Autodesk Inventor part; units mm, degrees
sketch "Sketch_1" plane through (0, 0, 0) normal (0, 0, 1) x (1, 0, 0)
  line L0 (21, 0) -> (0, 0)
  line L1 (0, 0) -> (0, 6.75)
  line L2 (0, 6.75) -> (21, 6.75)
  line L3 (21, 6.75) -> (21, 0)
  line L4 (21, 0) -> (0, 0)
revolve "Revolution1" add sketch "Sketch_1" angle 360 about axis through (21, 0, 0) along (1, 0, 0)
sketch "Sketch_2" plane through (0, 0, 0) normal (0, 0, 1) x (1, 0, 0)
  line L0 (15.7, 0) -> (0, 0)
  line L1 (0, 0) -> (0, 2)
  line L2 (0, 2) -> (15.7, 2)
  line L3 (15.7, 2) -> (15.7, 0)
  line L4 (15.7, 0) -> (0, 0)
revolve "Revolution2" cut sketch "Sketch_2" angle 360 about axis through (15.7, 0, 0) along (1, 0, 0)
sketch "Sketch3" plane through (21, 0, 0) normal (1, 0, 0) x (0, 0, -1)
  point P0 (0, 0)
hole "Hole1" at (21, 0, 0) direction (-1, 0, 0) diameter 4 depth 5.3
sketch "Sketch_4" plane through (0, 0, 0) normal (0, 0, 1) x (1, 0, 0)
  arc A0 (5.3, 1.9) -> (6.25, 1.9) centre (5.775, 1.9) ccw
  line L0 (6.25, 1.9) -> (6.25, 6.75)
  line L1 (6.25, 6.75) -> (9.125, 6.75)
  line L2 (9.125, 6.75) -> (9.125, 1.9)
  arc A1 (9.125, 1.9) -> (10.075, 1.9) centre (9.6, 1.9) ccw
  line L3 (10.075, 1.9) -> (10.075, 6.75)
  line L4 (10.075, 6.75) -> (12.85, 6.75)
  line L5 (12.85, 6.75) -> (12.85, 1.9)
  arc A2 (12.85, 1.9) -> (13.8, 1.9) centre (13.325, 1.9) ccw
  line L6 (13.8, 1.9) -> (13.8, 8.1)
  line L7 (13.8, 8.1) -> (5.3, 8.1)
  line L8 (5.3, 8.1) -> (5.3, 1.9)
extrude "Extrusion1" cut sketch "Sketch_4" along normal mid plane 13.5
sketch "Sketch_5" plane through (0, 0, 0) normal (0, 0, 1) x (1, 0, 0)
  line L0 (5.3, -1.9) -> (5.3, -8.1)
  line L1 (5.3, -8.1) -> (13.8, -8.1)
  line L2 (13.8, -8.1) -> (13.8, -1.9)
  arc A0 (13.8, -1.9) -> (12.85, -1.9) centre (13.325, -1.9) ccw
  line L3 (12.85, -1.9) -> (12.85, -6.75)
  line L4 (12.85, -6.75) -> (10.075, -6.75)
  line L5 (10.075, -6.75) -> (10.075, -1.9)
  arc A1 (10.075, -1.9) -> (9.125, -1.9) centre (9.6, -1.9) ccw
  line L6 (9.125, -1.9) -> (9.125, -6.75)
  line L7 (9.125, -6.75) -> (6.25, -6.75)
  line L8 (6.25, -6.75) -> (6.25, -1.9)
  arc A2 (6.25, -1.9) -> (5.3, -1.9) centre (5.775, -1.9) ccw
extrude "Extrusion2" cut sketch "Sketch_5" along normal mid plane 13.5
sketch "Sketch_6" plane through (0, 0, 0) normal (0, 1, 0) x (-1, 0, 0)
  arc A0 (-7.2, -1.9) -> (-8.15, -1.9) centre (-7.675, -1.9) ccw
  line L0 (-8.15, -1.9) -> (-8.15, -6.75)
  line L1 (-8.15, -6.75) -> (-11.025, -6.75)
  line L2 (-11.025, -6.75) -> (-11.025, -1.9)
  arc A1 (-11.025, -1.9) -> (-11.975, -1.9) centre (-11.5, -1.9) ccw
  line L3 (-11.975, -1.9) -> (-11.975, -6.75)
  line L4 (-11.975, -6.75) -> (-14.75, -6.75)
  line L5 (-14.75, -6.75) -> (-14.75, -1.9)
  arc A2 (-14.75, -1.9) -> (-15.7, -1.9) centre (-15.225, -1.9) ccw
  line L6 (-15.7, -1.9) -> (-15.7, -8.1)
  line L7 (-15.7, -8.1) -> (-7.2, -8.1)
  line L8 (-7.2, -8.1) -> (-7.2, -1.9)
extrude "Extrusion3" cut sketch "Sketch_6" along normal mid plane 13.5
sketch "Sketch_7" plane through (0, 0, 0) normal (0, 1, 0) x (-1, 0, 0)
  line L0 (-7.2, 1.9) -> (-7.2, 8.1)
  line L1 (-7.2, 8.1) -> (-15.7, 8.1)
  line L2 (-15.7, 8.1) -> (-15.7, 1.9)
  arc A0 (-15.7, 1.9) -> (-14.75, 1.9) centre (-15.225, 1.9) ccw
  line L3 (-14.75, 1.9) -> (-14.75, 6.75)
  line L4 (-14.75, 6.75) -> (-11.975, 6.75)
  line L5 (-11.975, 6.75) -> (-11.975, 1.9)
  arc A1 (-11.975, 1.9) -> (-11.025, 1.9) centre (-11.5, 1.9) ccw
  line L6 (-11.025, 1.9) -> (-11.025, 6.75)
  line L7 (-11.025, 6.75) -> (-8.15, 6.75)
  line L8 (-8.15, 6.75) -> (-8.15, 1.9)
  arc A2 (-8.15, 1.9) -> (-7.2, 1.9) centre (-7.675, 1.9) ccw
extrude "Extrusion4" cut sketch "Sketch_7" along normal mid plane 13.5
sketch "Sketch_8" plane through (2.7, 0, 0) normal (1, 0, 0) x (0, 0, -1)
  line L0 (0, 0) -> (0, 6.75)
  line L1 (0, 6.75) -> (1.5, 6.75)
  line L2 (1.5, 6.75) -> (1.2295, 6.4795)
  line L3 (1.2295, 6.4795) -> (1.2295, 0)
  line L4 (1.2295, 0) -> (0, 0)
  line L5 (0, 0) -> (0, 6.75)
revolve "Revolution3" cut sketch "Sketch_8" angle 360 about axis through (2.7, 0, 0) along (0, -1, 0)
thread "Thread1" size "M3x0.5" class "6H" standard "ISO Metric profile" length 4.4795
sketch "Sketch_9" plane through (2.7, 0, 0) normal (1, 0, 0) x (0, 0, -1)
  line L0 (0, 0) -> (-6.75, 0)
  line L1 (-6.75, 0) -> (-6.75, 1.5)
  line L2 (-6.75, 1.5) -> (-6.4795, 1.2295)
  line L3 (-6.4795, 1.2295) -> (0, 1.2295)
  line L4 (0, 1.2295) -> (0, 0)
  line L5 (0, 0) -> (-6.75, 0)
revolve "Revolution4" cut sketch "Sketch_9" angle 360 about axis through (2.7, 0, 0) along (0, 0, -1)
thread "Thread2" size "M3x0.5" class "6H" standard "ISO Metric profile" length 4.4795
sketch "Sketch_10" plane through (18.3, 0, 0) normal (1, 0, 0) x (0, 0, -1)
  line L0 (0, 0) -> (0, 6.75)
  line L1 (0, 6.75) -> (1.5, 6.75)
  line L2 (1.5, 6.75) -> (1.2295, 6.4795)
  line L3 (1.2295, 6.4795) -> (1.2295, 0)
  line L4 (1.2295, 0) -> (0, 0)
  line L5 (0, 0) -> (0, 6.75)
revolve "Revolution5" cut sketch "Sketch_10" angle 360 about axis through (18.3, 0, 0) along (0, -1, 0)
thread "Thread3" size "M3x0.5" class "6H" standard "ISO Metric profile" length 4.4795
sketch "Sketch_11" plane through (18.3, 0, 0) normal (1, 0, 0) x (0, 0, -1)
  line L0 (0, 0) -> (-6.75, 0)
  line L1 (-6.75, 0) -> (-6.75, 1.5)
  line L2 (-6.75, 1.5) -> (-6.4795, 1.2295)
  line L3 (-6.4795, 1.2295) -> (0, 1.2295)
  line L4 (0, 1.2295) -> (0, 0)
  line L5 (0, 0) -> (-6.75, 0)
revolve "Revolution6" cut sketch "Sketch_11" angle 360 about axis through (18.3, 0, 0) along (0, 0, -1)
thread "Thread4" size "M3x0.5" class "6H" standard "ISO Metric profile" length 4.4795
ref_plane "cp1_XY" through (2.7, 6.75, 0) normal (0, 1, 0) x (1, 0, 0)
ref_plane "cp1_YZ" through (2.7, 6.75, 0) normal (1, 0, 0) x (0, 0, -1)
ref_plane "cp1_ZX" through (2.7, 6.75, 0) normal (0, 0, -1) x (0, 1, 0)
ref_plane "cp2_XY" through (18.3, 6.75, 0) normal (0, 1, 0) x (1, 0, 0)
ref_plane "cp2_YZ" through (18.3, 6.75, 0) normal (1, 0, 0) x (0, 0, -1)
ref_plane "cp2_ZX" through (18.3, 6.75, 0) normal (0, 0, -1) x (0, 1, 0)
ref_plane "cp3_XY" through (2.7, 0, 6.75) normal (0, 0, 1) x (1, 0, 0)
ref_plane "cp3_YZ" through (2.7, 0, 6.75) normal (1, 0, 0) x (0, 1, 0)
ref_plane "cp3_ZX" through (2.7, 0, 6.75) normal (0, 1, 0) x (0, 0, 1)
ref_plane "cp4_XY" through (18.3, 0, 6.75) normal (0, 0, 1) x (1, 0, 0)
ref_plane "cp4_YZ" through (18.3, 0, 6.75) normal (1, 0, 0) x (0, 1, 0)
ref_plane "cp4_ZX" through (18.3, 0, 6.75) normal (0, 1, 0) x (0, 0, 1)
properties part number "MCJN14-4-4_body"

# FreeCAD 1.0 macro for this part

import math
import FreeCAD as App
import Part
import Sketcher

V = App.Vector
Q = App.Units.Quantity


def add_polygon(sketch, points):
    """Adds a closed chain of lines whose ends are joined by coincident constraints."""
    first, n = sketch.GeometryCount, len(points)
    for a, b in zip(points, points[1:] + points[:1]):
        sketch.addGeometry(Part.LineSegment(App.Vector(*a, 0), App.Vector(*b, 0)), False)
    for i in range(n):
        sketch.addConstraint(Sketcher.Constraint("Coincident", first + i, 2, first + (i + 1) % n, 1))

doc = App.newDocument("Part")
body = doc.addObject("PartDesign::Body", "Body")

# Sketch on XY plane
sketch1 = body.newObject("Sketcher::SketchObject", "Sketch")
sketch1.AttachmentSupport = (doc.getObject("XY_Plane"), [""])
sketch1.MapMode = "FlatFace"
add_polygon(sketch1, [(0, 0), (21, 0), (21, 6.75), (0, 6.75)])  # lines 0-3
sketch1.addConstraint([
    Sketcher.Constraint("Horizontal", 0),
    Sketcher.Constraint("Vertical", 1),
    Sketcher.Constraint("Horizontal", 2),
    Sketcher.Constraint("Vertical", 3),
    Sketcher.Constraint("Coincident", 3, 2, -1, 1),
    Sketcher.Constraint("DistanceX", 0, 1, 0, 2, 21.0),
    Sketcher.Constraint("DistanceY", 1, 1, 1, 2, 6.75),
])
revolution = body.newObject("PartDesign::Revolution", "Revolution")
revolution.Profile = sketch1
revolution.ReferenceAxis = (sketch1, ["H_Axis"])
revolution.Angle = 360

# Sketch on XY plane
sketch2 = body.newObject("Sketcher::SketchObject", "Sketch001")
sketch2.AttachmentSupport = (doc.getObject("XY_Plane"), [""])
sketch2.MapMode = "FlatFace"
add_polygon(sketch2, [(0, 0), (15.7, 0), (15.7, 2), (0, 2)])  # lines 0-3
sketch2.addConstraint([
    Sketcher.Constraint("Horizontal", 0),
    Sketcher.Constraint("Vertical", 1),
    Sketcher.Constraint("Horizontal", 2),
    Sketcher.Constraint("Vertical", 3),
    Sketcher.Constraint("Coincident", 3, 2, -1, 1),
    Sketcher.Constraint("DistanceY", 1, 1, 1, 2, 2.0),
    Sketcher.Constraint("DistanceX", 0, 1, 0, 2, 15.7),
])
groove = body.newObject("PartDesign::Groove", "Groove")
groove.Profile = sketch2
groove.ReferenceAxis = (sketch2, ["H_Axis"])
groove.Angle = 360

# Sketch on YZ plane
sketch3 = body.newObject("Sketcher::SketchObject", "Sketch002")
sketch3.AttachmentSupport = (doc.getObject("YZ_Plane"), [""])
sketch3.MapMode = "FlatFace"
sketch3.AttachmentOffset = App.Placement(V(0, 0, 21), App.Rotation())
sketch3.addGeometry(Part.Circle(V(0, 0, 0), V(0, 0, 1), 2), False)
sketch3.addConstraint([
    Sketcher.Constraint("Coincident", 0, 3, -1, 1),
    Sketcher.Constraint("Diameter", 0, 4.0),
])
doc.recompute()
hole = body.newObject("PartDesign::Hole", "Hole")
hole.Profile = sketch3
hole.ThreadType = "None"
hole.Diameter = 4
hole.DepthType = "Dimension"
hole.Depth = 5.3
hole.DrillPoint = "Flat"

# Sketch on XY plane
sketch4 = body.newObject("Sketcher::SketchObject", "Sketch003")
sketch4.AttachmentSupport = (doc.getObject("XY_Plane"), [""])
sketch4.MapMode = "FlatFace"
sketch4.addGeometry([
    Part.LineSegment(V(5.3, 8.1, 0), V(5.3, 1.9, 0)),  # 0
    Part.ArcOfCircle(Part.Circle(V(5.775, 1.9, 0), V(0, 0, 1), 0.475), math.radians(180), math.radians(360)),  # 1
    Part.LineSegment(V(6.25, 1.9, 0), V(6.25, 6.75, 0)),  # 2
    Part.LineSegment(V(6.25, 6.75, 0), V(9.125, 6.75, 0)),  # 3
    Part.LineSegment(V(9.125, 6.75, 0), V(9.125, 1.9, 0)),  # 4
    Part.ArcOfCircle(Part.Circle(V(9.6, 1.9, 0), V(0, 0, 1), 0.475), math.radians(180), math.radians(360)),  # 5
    Part.LineSegment(V(10.075, 1.9, 0), V(10.075, 6.75, 0)),  # 6
    Part.LineSegment(V(10.075, 6.75, 0), V(12.85, 6.75, 0)),  # 7
    Part.LineSegment(V(12.85, 6.75, 0), V(12.85, 1.9, 0)),  # 8
    Part.ArcOfCircle(Part.Circle(V(13.325, 1.9, 0), V(0, 0, 1), 0.475), math.radians(180), math.radians(360)),  # 9
    Part.LineSegment(V(13.8, 1.9, 0), V(13.8, 8.1, 0)),  # 10
    Part.LineSegment(V(13.8, 8.1, 0), V(5.3, 8.1, 0)),  # 11
], False)
sketch4.addConstraint([
    Sketcher.Constraint("Tangent", 0, 2, 1, 1),
    Sketcher.Constraint("Tangent", 1, 2, 2, 1),
    Sketcher.Constraint("Coincident", 2, 2, 3, 1),
    Sketcher.Constraint("Coincident", 3, 2, 4, 1),
    Sketcher.Constraint("Tangent", 4, 2, 5, 1),
    Sketcher.Constraint("Tangent", 5, 2, 6, 1),
    Sketcher.Constraint("Coincident", 6, 2, 7, 1),
    Sketcher.Constraint("Coincident", 7, 2, 8, 1),
    Sketcher.Constraint("Tangent", 8, 2, 9, 1),
    Sketcher.Constraint("Tangent", 9, 2, 10, 1),
    Sketcher.Constraint("Coincident", 10, 2, 11, 1),
    Sketcher.Constraint("Coincident", 11, 2, 0, 1),
    Sketcher.Constraint("Vertical", 0),
    Sketcher.Constraint("Vertical", 2),
    Sketcher.Constraint("Horizontal", 3),
    Sketcher.Constraint("Vertical", 4),
    Sketcher.Constraint("Vertical", 6),
    Sketcher.Constraint("Horizontal", 7),
    Sketcher.Constraint("Vertical", 8),
    Sketcher.Constraint("Vertical", 10),
    Sketcher.Constraint("Horizontal", 11),
    Sketcher.Constraint("Equal", 1, 5),
    Sketcher.Constraint("Equal", 5, 9),
    Sketcher.Constraint("Horizontal", 1, 3, 5, 3),
    Sketcher.Constraint("Horizontal", 5, 3, 9, 3),
    Sketcher.Constraint("Horizontal", 3, 2, 6, 2),
    Sketcher.Constraint("DistanceX", 11, 2, 11, 1, 8.5),
    Sketcher.Constraint("DistanceY", 0, 2, 0, 1, 6.2),
    Sketcher.Constraint("Radius", 1, 0.475),
    Sketcher.Constraint("DistanceY", 2, 1, 2, 2, 4.85),
    Sketcher.Constraint("DistanceY", -1, 1, 1, 3, 1.9),
    Sketcher.Constraint("DistanceX", -1, 1, 5, 3, 9.6),
    Sketcher.Constraint("DistanceX", -1, 1, 0, 2, 5.3),
])
pocket1 = body.newObject("PartDesign::Pocket", "Pocket")
pocket1.Profile = sketch4
pocket1.Length = 13.5
pocket1.Midplane = True

# Sketch on XY plane
sketch5 = body.newObject("Sketcher::SketchObject", "Sketch004")
sketch5.AttachmentSupport = (doc.getObject("XY_Plane"), [""])
sketch5.MapMode = "FlatFace"
sketch5.addGeometry([
    Part.ArcOfCircle(Part.Circle(V(5.775, -1.9, 0), V(0, 0, 1), 0.475), math.radians(0), math.radians(180)),  # 0
    Part.LineSegment(V(5.3, -1.9, 0), V(5.3, -8.1, 0)),  # 1
    Part.LineSegment(V(5.3, -8.1, 0), V(13.8, -8.1, 0)),  # 2
    Part.LineSegment(V(13.8, -8.1, 0), V(13.8, -1.9, 0)),  # 3
    Part.ArcOfCircle(Part.Circle(V(13.325, -1.9, 0), V(0, 0, 1), 0.475), math.radians(0), math.radians(180)),  # 4
    Part.LineSegment(V(12.85, -1.9, 0), V(12.85, -6.75, 0)),  # 5
    Part.LineSegment(V(12.85, -6.75, 0), V(10.075, -6.75, 0)),  # 6
    Part.LineSegment(V(10.075, -6.75, 0), V(10.075, -1.9, 0)),  # 7
    Part.ArcOfCircle(Part.Circle(V(9.6, -1.9, 0), V(0, 0, 1), 0.475), math.radians(0), math.radians(180)),  # 8
    Part.LineSegment(V(9.125, -1.9, 0), V(9.125, -6.75, 0)),  # 9
    Part.LineSegment(V(9.125, -6.75, 0), V(6.25, -6.75, 0)),  # 10
    Part.LineSegment(V(6.25, -6.75, 0), V(6.25, -1.9, 0)),  # 11
], False)
sketch5.addConstraint([
    Sketcher.Constraint("Tangent", 0, 2, 1, 1),
    Sketcher.Constraint("Coincident", 1, 2, 2, 1),
    Sketcher.Constraint("Coincident", 2, 2, 3, 1),
    Sketcher.Constraint("Tangent", 3, 2, 4, 1),
    Sketcher.Constraint("Tangent", 4, 2, 5, 1),
    Sketcher.Constraint("Coincident", 5, 2, 6, 1),
    Sketcher.Constraint("Coincident", 6, 2, 7, 1),
    Sketcher.Constraint("Tangent", 7, 2, 8, 1),
    Sketcher.Constraint("Tangent", 8, 2, 9, 1),
    Sketcher.Constraint("Coincident", 9, 2, 10, 1),
    Sketcher.Constraint("Coincident", 10, 2, 11, 1),
    Sketcher.Constraint("Tangent", 11, 2, 0, 1),
    Sketcher.Constraint("Vertical", 1),
    Sketcher.Constraint("Horizontal", 2),
    Sketcher.Constraint("Vertical", 3),
    Sketcher.Constraint("Vertical", 5),
    Sketcher.Constraint("Horizontal", 6),
    Sketcher.Constraint("Vertical", 7),
    Sketcher.Constraint("Vertical", 9),
    Sketcher.Constraint("Horizontal", 10),
    Sketcher.Constraint("Vertical", 11),
    Sketcher.Constraint("Equal", 0, 4),
    Sketcher.Constraint("Equal", 4, 8),
    Sketcher.Constraint("Horizontal", 0, 3, 4, 3),
    Sketcher.Constraint("Horizontal", 4, 3, 8, 3),
    Sketcher.Constraint("Horizontal", 6, 2, 9, 2),
    Sketcher.Constraint("DistanceX", 2, 1, 2, 2, 8.5),
    Sketcher.Constraint("DistanceY", 1, 2, 1, 1, 6.2),
    Sketcher.Constraint("Radius", 0, 0.475),
    Sketcher.Constraint("DistanceY", 5, 2, 5, 1, 4.85),
    Sketcher.Constraint("DistanceY", 0, 3, -1, 1, 1.9),
    Sketcher.Constraint("DistanceX", -1, 1, 8, 3, 9.6),
    Sketcher.Constraint("DistanceX", -1, 1, 0, 2, 5.3),
])
pocket2 = body.newObject("PartDesign::Pocket", "Pocket001")
pocket2.Profile = sketch5
pocket2.Length = 13.5
pocket2.Midplane = True

# Sketch on XZ plane
sketch6 = body.newObject("Sketcher::SketchObject", "Sketch005")
sketch6.AttachmentSupport = (doc.getObject("XZ_Plane"), [""])
sketch6.MapMode = "FlatFace"
sketch6.addGeometry([
    Part.LineSegment(V(7.2, -8.1, 0), V(7.2, -1.9, 0)),  # 0
    Part.ArcOfCircle(Part.Circle(V(7.675, -1.9, 0), V(0, 0, 1), 0.475), math.radians(0), math.radians(180)),  # 1
    Part.LineSegment(V(8.15, -1.9, 0), V(8.15, -6.75, 0)),  # 2
    Part.LineSegment(V(8.15, -6.75, 0), V(11.025, -6.75, 0)),  # 3
    Part.LineSegment(V(11.025, -6.75, 0), V(11.025, -1.9, 0)),  # 4
    Part.ArcOfCircle(Part.Circle(V(11.5, -1.9, 0), V(0, 0, 1), 0.475), math.radians(0), math.radians(180)),  # 5
    Part.LineSegment(V(11.975, -1.9, 0), V(11.975, -6.75, 0)),  # 6
    Part.LineSegment(V(11.975, -6.75, 0), V(14.75, -6.75, 0)),  # 7
    Part.LineSegment(V(14.75, -6.75, 0), V(14.75, -1.9, 0)),  # 8
    Part.ArcOfCircle(Part.Circle(V(15.225, -1.9, 0), V(0, 0, 1), 0.475), math.radians(0), math.radians(180)),  # 9
    Part.LineSegment(V(15.7, -1.9, 0), V(15.7, -8.1, 0)),  # 10
    Part.LineSegment(V(15.7, -8.1, 0), V(7.2, -8.1, 0)),  # 11
], False)
sketch6.addConstraint([
    Sketcher.Constraint("Tangent", 0, 2, 1, 2),
    Sketcher.Constraint("Tangent", 1, 1, 2, 1),
    Sketcher.Constraint("Coincident", 2, 2, 3, 1),
    Sketcher.Constraint("Coincident", 3, 2, 4, 1),
    Sketcher.Constraint("Tangent", 4, 2, 5, 2),
    Sketcher.Constraint("Tangent", 5, 1, 6, 1),
    Sketcher.Constraint("Coincident", 6, 2, 7, 1),
    Sketcher.Constraint("Coincident", 7, 2, 8, 1),
    Sketcher.Constraint("Tangent", 8, 2, 9, 2),
    Sketcher.Constraint("Tangent", 9, 1, 10, 1),
    Sketcher.Constraint("Coincident", 10, 2, 11, 1),
    Sketcher.Constraint("Coincident", 11, 2, 0, 1),
    Sketcher.Constraint("Vertical", 0),
    Sketcher.Constraint("Vertical", 2),
    Sketcher.Constraint("Horizontal", 3),
    Sketcher.Constraint("Vertical", 4),
    Sketcher.Constraint("Vertical", 6),
    Sketcher.Constraint("Horizontal", 7),
    Sketcher.Constraint("Vertical", 8),
    Sketcher.Constraint("Vertical", 10),
    Sketcher.Constraint("Horizontal", 11),
    Sketcher.Constraint("Equal", 1, 5),
    Sketcher.Constraint("Equal", 5, 9),
    Sketcher.Constraint("Horizontal", 1, 3, 5, 3),
    Sketcher.Constraint("Horizontal", 5, 3, 9, 3),
    Sketcher.Constraint("Horizontal", 3, 2, 6, 2),
    Sketcher.Constraint("DistanceX", 11, 2, 11, 1, 8.5),
    Sketcher.Constraint("DistanceY", 0, 1, 0, 2, 6.2),
    Sketcher.Constraint("Radius", 1, 0.475),
    Sketcher.Constraint("DistanceY", 2, 2, 2, 1, 4.85),
    Sketcher.Constraint("DistanceY", 1, 3, -1, 1, 1.9),
    Sketcher.Constraint("DistanceX", -1, 1, 5, 3, 11.5),
    Sketcher.Constraint("DistanceX", -1, 1, 0, 2, 7.2),
])
pocket3 = body.newObject("PartDesign::Pocket", "Pocket002")
pocket3.Profile = sketch6
pocket3.Length = 13.5
pocket3.Midplane = True

# Sketch on XZ plane
sketch7 = body.newObject("Sketcher::SketchObject", "Sketch006")
sketch7.AttachmentSupport = (doc.getObject("XZ_Plane"), [""])
sketch7.MapMode = "FlatFace"
sketch7.addGeometry([
    Part.ArcOfCircle(Part.Circle(V(7.675, 1.9, 0), V(0, 0, 1), 0.475), math.radians(180), math.radians(360)),  # 0
    Part.LineSegment(V(7.2, 1.9, 0), V(7.2, 8.1, 0)),  # 1
    Part.LineSegment(V(7.2, 8.1, 0), V(15.7, 8.1, 0)),  # 2
    Part.LineSegment(V(15.7, 8.1, 0), V(15.7, 1.9, 0)),  # 3
    Part.ArcOfCircle(Part.Circle(V(15.225, 1.9, 0), V(0, 0, 1), 0.475), math.radians(180), math.radians(360)),  # 4
    Part.LineSegment(V(14.75, 1.9, 0), V(14.75, 6.75, 0)),  # 5
    Part.LineSegment(V(14.75, 6.75, 0), V(11.975, 6.75, 0)),  # 6
    Part.LineSegment(V(11.975, 6.75, 0), V(11.975, 1.9, 0)),  # 7
    Part.ArcOfCircle(Part.Circle(V(11.5, 1.9, 0), V(0, 0, 1), 0.475), math.radians(180), math.radians(360)),  # 8
    Part.LineSegment(V(11.025, 1.9, 0), V(11.025, 6.75, 0)),  # 9
    Part.LineSegment(V(11.025, 6.75, 0), V(8.15, 6.75, 0)),  # 10
    Part.LineSegment(V(8.15, 6.75, 0), V(8.15, 1.9, 0)),  # 11
], False)
sketch7.addConstraint([
    Sketcher.Constraint("Tangent", 0, 1, 1, 1),
    Sketcher.Constraint("Coincident", 1, 2, 2, 1),
    Sketcher.Constraint("Coincident", 2, 2, 3, 1),
    Sketcher.Constraint("Tangent", 3, 2, 4, 2),
    Sketcher.Constraint("Tangent", 4, 1, 5, 1),
    Sketcher.Constraint("Coincident", 5, 2, 6, 1),
    Sketcher.Constraint("Coincident", 6, 2, 7, 1),
    Sketcher.Constraint("Tangent", 7, 2, 8, 2),
    Sketcher.Constraint("Tangent", 8, 1, 9, 1),
    Sketcher.Constraint("Coincident", 9, 2, 10, 1),
    Sketcher.Constraint("Coincident", 10, 2, 11, 1),
    Sketcher.Constraint("Tangent", 11, 2, 0, 2),
    Sketcher.Constraint("Vertical", 1),
    Sketcher.Constraint("Horizontal", 2),
    Sketcher.Constraint("Vertical", 3),
    Sketcher.Constraint("Vertical", 5),
    Sketcher.Constraint("Horizontal", 6),
    Sketcher.Constraint("Vertical", 7),
    Sketcher.Constraint("Vertical", 9),
    Sketcher.Constraint("Horizontal", 10),
    Sketcher.Constraint("Vertical", 11),
    Sketcher.Constraint("Equal", 0, 4),
    Sketcher.Constraint("Equal", 4, 8),
    Sketcher.Constraint("Horizontal", 0, 3, 4, 3),
    Sketcher.Constraint("Horizontal", 4, 3, 8, 3),
    Sketcher.Constraint("Horizontal", 6, 2, 9, 2),
    Sketcher.Constraint("DistanceX", 2, 1, 2, 2, 8.5),
    Sketcher.Constraint("DistanceY", 1, 1, 1, 2, 6.2),
    Sketcher.Constraint("Radius", 0, 0.475),
    Sketcher.Constraint("DistanceY", 5, 1, 5, 2, 4.85),
    Sketcher.Constraint("DistanceY", -1, 1, 0, 3, 1.9),
    Sketcher.Constraint("DistanceX", -1, 1, 8, 3, 11.5),
    Sketcher.Constraint("DistanceX", -1, 1, 0, 1, 7.2),
])
pocket4 = body.newObject("PartDesign::Pocket", "Pocket003")
pocket4.Profile = sketch7
pocket4.Length = 13.5
pocket4.Midplane = True

# Sketch on YZ plane
sketch8 = body.newObject("Sketcher::SketchObject", "Sketch007")
sketch8.AttachmentSupport = (doc.getObject("YZ_Plane"), [""])
sketch8.MapMode = "FlatFace"
sketch8.AttachmentOffset = App.Placement(V(0, 0, 2.7), App.Rotation())
add_polygon(sketch8, [(6.75, 0), (0, 0), (0, -1.2295), (6.4795, -1.2295), (6.75, -1.5)])  # lines 0-4
sketch8.addConstraint([
    Sketcher.Constraint("Horizontal", 0),
    Sketcher.Constraint("Vertical", 1),
    Sketcher.Constraint("Horizontal", 2),
    Sketcher.Constraint("Vertical", 4),
    Sketcher.Constraint("Coincident", 0, 2, -1, 1),
    Sketcher.Constraint("Angle", 3, Q("-45 deg")),
    Sketcher.Constraint("DistanceY", 4, 1, 4, 2, 1.5),
    Sketcher.Constraint("DistanceX", 0, 2, 0, 1, 6.75),
    Sketcher.Constraint("DistanceX", 2, 1, 2, 2, 6.4795),
])
groove2 = body.newObject("PartDesign::Groove", "Groove001")
groove2.Profile = sketch8
groove2.ReferenceAxis = (sketch8, ["H_Axis"])
groove2.Angle = 360

# Sketch on YZ plane
sketch9 = body.newObject("Sketcher::SketchObject", "Sketch008")
sketch9.AttachmentSupport = (doc.getObject("YZ_Plane"), [""])
sketch9.MapMode = "FlatFace"
sketch9.AttachmentOffset = App.Placement(V(0, 0, 2.7), App.Rotation())
add_polygon(sketch9, [(0, 6.75), (0, 0), (1.2295, 0), (1.2295, 6.4795), (1.5, 6.75)])  # lines 0-4
sketch9.addConstraint([
    Sketcher.Constraint("Vertical", 0),
    Sketcher.Constraint("Horizontal", 1),
    Sketcher.Constraint("Vertical", 2),
    Sketcher.Constraint("Horizontal", 4),
    Sketcher.Constraint("Coincident", 0, 2, -1, 1),
    Sketcher.Constraint("Angle", 3, Q("45 deg")),
    Sketcher.Constraint("DistanceX", 4, 2, 4, 1, 1.5),
    Sketcher.Constraint("DistanceY", 0, 2, 0, 1, 6.75),
    Sketcher.Constraint("DistanceX", 1, 1, 1, 2, 1.2295),
])
groove3 = body.newObject("PartDesign::Groove", "Groove002")
groove3.Profile = sketch9
groove3.ReferenceAxis = (sketch9, ["V_Axis"])
groove3.Angle = 360

# Sketch on YZ plane
sketch10 = body.newObject("Sketcher::SketchObject", "Sketch009")
sketch10.AttachmentSupport = (doc.getObject("YZ_Plane"), [""])
sketch10.MapMode = "FlatFace"
sketch10.AttachmentOffset = App.Placement(V(0, 0, 18.3), App.Rotation())
add_polygon(sketch10, [(6.75, 0), (0, 0), (0, -1.2295), (6.4795, -1.2295), (6.75, -1.5)])  # lines 0-4
sketch10.addConstraint([
    Sketcher.Constraint("Horizontal", 0),
    Sketcher.Constraint("Vertical", 1),
    Sketcher.Constraint("Horizontal", 2),
    Sketcher.Constraint("Vertical", 4),
    Sketcher.Constraint("Coincident", 0, 2, -1, 1),
    Sketcher.Constraint("Angle", 3, Q("-45 deg")),
    Sketcher.Constraint("DistanceY", 4, 1, 4, 2, 1.5),
    Sketcher.Constraint("DistanceX", 0, 2, 0, 1, 6.75),
    Sketcher.Constraint("DistanceX", 2, 1, 2, 2, 6.4795),
])
groove4 = body.newObject("PartDesign::Groove", "Groove003")
groove4.Profile = sketch10
groove4.ReferenceAxis = (sketch10, ["H_Axis"])
groove4.Angle = 360

# Sketch on YZ plane
sketch11 = body.newObject("Sketcher::SketchObject", "Sketch010")
sketch11.AttachmentSupport = (doc.getObject("YZ_Plane"), [""])
sketch11.MapMode = "FlatFace"
sketch11.AttachmentOffset = App.Placement(V(0, 0, 18.3), App.Rotation())
add_polygon(sketch11, [(0, 6.75), (0, 0), (1.2295, 0), (1.2295, 6.4795), (1.5, 6.75)])  # lines 0-4
sketch11.addConstraint([
    Sketcher.Constraint("Vertical", 0),
    Sketcher.Constraint("Horizontal", 1),
    Sketcher.Constraint("Vertical", 2),
    Sketcher.Constraint("Horizontal", 4),
    Sketcher.Constraint("Coincident", 0, 2, -1, 1),
    Sketcher.Constraint("Angle", 3, Q("45 deg")),
    Sketcher.Constraint("DistanceX", 4, 2, 4, 1, 1.5),
    Sketcher.Constraint("DistanceY", 0, 2, 0, 1, 6.75),
    Sketcher.Constraint("DistanceX", 1, 1, 1, 2, 1.2295),
])
groove5 = body.newObject("PartDesign::Groove", "Groove004")
groove5.Profile = sketch11
groove5.ReferenceAxis = (sketch11, ["V_Axis"])
groove5.Angle = 360

doc.recompute()
